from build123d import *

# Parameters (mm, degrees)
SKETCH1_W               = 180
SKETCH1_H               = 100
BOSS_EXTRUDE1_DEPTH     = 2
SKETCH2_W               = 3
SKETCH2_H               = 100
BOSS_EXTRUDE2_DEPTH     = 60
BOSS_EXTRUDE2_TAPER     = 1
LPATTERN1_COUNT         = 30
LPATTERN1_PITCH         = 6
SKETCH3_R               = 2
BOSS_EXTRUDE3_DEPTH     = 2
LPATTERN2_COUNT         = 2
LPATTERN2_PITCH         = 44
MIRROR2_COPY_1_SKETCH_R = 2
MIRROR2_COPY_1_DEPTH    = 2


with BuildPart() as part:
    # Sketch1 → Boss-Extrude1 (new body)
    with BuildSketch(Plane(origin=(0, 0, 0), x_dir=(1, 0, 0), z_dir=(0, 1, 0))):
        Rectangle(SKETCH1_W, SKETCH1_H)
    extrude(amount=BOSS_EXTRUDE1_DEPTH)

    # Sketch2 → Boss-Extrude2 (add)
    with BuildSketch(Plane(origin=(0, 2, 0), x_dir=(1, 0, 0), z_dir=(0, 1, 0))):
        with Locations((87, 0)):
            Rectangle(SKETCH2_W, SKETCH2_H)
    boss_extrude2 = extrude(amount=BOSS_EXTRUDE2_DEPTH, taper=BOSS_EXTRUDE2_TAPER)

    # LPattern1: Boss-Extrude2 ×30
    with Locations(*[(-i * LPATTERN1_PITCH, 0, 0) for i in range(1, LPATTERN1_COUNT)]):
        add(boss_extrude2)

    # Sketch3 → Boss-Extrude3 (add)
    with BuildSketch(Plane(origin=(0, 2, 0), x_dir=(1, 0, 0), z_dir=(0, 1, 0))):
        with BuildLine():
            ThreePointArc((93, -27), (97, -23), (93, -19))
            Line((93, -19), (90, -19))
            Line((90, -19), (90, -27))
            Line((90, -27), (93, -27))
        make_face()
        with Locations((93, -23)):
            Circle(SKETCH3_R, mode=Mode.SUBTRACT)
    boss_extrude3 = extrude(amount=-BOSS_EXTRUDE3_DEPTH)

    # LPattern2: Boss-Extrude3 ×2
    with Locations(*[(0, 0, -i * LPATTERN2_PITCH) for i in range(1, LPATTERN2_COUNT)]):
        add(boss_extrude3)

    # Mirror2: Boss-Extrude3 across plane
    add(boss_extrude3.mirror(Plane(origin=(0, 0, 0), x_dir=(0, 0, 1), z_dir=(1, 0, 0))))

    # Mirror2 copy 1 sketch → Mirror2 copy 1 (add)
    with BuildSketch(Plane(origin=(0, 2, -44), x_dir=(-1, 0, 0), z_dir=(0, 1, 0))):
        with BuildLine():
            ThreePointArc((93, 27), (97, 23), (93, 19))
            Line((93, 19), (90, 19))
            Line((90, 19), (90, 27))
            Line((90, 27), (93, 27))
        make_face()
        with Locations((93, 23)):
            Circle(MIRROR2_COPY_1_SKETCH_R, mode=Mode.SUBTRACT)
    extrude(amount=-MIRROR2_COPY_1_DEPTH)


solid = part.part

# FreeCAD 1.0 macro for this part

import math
import FreeCAD as App
import Part
import Sketcher

V = App.Vector
Q = App.Units.Quantity


def add_polygon(sketch, points):
    """Adds a closed chain of lines whose ends are joined by coincident constraints."""
    first, n = sketch.GeometryCount, len(points)
    for a, b in zip(points, points[1:] + points[:1]):
        sketch.addGeometry(Part.LineSegment(App.Vector(*a, 0), App.Vector(*b, 0)), False)
    for i in range(n):
        sketch.addConstraint(Sketcher.Constraint("Coincident", first + i, 2, first + (i + 1) % n, 1))

doc = App.newDocument("Part")
params = doc.addObject("Spreadsheet::Sheet", "Params")
for row, (alias, value) in enumerate([
    ("sketch1_width", "180 mm"),
    ("sketch1_height", "100 mm"),
    ("pad1_length", "2 mm"),
    ("sketch2_width", "3 mm"),
    ("sketch2_height", "100 mm"),
    ("pad2_length", "60 mm"),
    ("pad2_taper", "-1 deg"),
    ("linearpattern_pitch", "6 mm"),
    ("sketch3_diameter", "4 mm"),
    ("sketch3_radius", "4 mm"),
    ("sketch3_width", "3 mm"),
    ("pad3_length", "2 mm"),
    ("linearpattern2_pitch", "44 mm"),
    ("sketch4_diameter", "4 mm"),
    ("sketch4_radius", "4 mm"),
    ("sketch4_width", "3 mm"),
    ("pad4_length", "2 mm"),
], start=1):
    params.set(f"A{row}", alias)
    params.set(f"B{row}", "=" + value)
    params.setAlias(f"B{row}", alias)

body = doc.addObject("PartDesign::Body", "Body")

sketch1 = body.newObject("Sketcher::SketchObject", "Sketch")
sketch1.AttachmentSupport = (doc.getObject("XZ_Plane"), [""])
sketch1.MapMode = "FlatFace"
add_polygon(sketch1, [(-90, -50), (-90, 50), (90, 50), (90, -50)])
sketch1.addConstraint(Sketcher.Constraint("Vertical", 0))
sketch1.addConstraint(Sketcher.Constraint("Horizontal", 1))
sketch1.addConstraint(Sketcher.Constraint("Vertical", 2))
sketch1.addConstraint(Sketcher.Constraint("Horizontal", 3))
sketch1.addConstraint(Sketcher.Constraint("Symmetric", 0, 2, 2, 2, -1, 1))
sketch1.addConstraint(Sketcher.Constraint("DistanceX", 1, 1, 1, 2, Q("180 mm")))
sketch1.addConstraint(Sketcher.Constraint("DistanceY", 0, 1, 0, 2, Q("100 mm")))
sketch1.setExpression("Constraints[9]", "Params.sketch1_width")
sketch1.setExpression("Constraints[10]", "Params.sketch1_height")
pad1 = body.newObject("PartDesign::Pad", "Pad")
pad1.Profile = sketch1
pad1.setExpression("Length", "Params.pad1_length")
pad1.Reversed = True

sketch2 = body.newObject("Sketcher::SketchObject", "Sketch001")
sketch2.AttachmentSupport = (doc.getObject("XZ_Plane"), [""])
sketch2.MapMode = "FlatFace"
sketch2.AttachmentOffset = App.Placement(V(0, 0, -2), App.Rotation())
add_polygon(sketch2, [(85.5, -50), (85.5, 50), (88.5, 50), (88.5, -50)])
sketch2.addConstraint(Sketcher.Constraint("Vertical", 0))
sketch2.addConstraint(Sketcher.Constraint("Horizontal", 1))
sketch2.addConstraint(Sketcher.Constraint("Vertical", 2))
sketch2.addConstraint(Sketcher.Constraint("Horizontal", 3))
sketch2.addConstraint(Sketcher.Constraint("DistanceX", 1, 1, 1, 2, Q("3 mm")))
sketch2.addConstraint(Sketcher.Constraint("DistanceY", 0, 1, 0, 2, Q("100 mm")))
sketch2.addConstraint(Sketcher.Constraint("DistanceY", -1, 1, 0, 2, Q("50 mm")))
sketch2.addConstraint(Sketcher.Constraint("DistanceX", -1, 1, 0, 2, Q("85.5 mm")))
sketch2.setExpression("Constraints[8]", "Params.sketch2_width")
sketch2.setExpression("Constraints[9]", "Params.sketch2_height")
pad2 = body.newObject("PartDesign::Pad", "Pad001")
pad2.Profile = sketch2
pad2.setExpression("Length", "Params.pad2_length")
pad2.Reversed = True
pad2.setExpression("TaperAngle", "Params.pad2_taper")
doc.recompute()

linearpattern = body.newObject("PartDesign::LinearPattern", "LinearPattern")
linearpattern.Originals = [pad2]
linearpattern.Direction = (doc.getObject("X_Axis"), [""])
linearpattern.Mode = "offset"
linearpattern.setExpression("Offset", "Params.linearpattern_pitch")
linearpattern.Occurrences = 30
linearpattern.Reversed = True
body.Tip = linearpattern

sketch3 = body.newObject("Sketcher::SketchObject", "Sketch002")
sketch3.AttachmentSupport = (doc.getObject("XZ_Plane"), [""])
sketch3.MapMode = "FlatFace"
sketch3.AttachmentOffset = App.Placement(V(0, 0, -2), App.Rotation())
sketch3.addGeometry(Part.ArcOfCircle(Part.Circle(V(93, 23, 0), V(0, 0, 1), 4), math.radians(-90), math.radians(90)), False)
sketch3.addGeometry(Part.LineSegment(V(93, 19, 0), V(90, 19, 0)), False)
sketch3.addGeometry(Part.LineSegment(V(90, 19, 0), V(90, 27, 0)), False)
sketch3.addGeometry(Part.LineSegment(V(90, 27, 0), V(93, 27, 0)), False)
sketch3.addGeometry(Part.Circle(V(93, 23, 0), V(0, 0, 1), 2), False)
sketch3.addConstraint(Sketcher.Constraint("Tangent", 0, 1, 1, 1))
sketch3.addConstraint(Sketcher.Constraint("Coincident", 1, 2, 2, 1))
sketch3.addConstraint(Sketcher.Constraint("Coincident", 2, 2, 3, 1))
sketch3.addConstraint(Sketcher.Constraint("Tangent", 3, 2, 0, 2))
sketch3.addConstraint(Sketcher.Constraint("Horizontal", 1))
sketch3.addConstraint(Sketcher.Constraint("Vertical", 2))
sketch3.addConstraint(Sketcher.Constraint("Horizontal", 3))
sketch3.addConstraint(Sketcher.Constraint("Coincident", 4, 3, 0, 3))
sketch3.addConstraint(Sketcher.Constraint("Diameter", 4, Q("4 mm")))
sketch3.addConstraint(Sketcher.Constraint("Radius", 0, Q("4 mm")))
sketch3.addConstraint(Sketcher.Constraint("DistanceX", 1, 2, 1, 1, Q("3 mm")))
sketch3.addConstraint(Sketcher.Constraint("DistanceX", -1, 1, 0, 3, Q("93 mm")))
sketch3.addConstraint(Sketcher.Constraint("DistanceY", -1, 1, 0, 3, Q("23 mm")))
sketch3.setExpression("Constraints[8]", "Params.sketch3_diameter")
sketch3.setExpression("Constraints[9]", "Params.sketch3_radius")
sketch3.setExpression("Constraints[10]", "Params.sketch3_width")
pad3 = body.newObject("PartDesign::Pad", "Pad002")
pad3.Profile = sketch3
pad3.setExpression("Length", "Params.pad3_length")
doc.recompute()

linearpattern2 = body.newObject("PartDesign::LinearPattern", "LinearPattern001")
linearpattern2.Originals = [pad3]
linearpattern2.Direction = (doc.getObject("Z_Axis"), [""])
linearpattern2.Mode = "offset"
linearpattern2.setExpression("Offset", "Params.linearpattern2_pitch")
linearpattern2.Occurrences = 2
linearpattern2.Reversed = True
body.Tip = linearpattern2
doc.recompute()

mirrored = body.newObject("PartDesign::Mirrored", "Mirrored")
mirrored.Originals = [pad3]
mirrored.MirrorPlane = (doc.getObject("YZ_Plane"), [""])
body.Tip = mirrored

sketch4 = body.newObject("Sketcher::SketchObject", "Sketch003")
sketch4.AttachmentSupport = (doc.getObject("XZ_Plane"), [""])
sketch4.MapMode = "FlatFace"
sketch4.AttachmentOffset = App.Placement(V(0, 0, -2), App.Rotation())
sketch4.addGeometry(Part.ArcOfCircle(Part.Circle(V(-93, -21, 0), V(0, 0, 1), 4), math.radians(90), math.radians(270)), False)
sketch4.addGeometry(Part.LineSegment(V(-93, -17, 0), V(-90, -17, 0)), False)
sketch4.addGeometry(Part.LineSegment(V(-90, -17, 0), V(-90, -25, 0)), False)
sketch4.addGeometry(Part.LineSegment(V(-90, -25, 0), V(-93, -25, 0)), False)
sketch4.addGeometry(Part.Circle(V(-93, -21, 0), V(0, 0, 1), 2), False)
sketch4.addConstraint(Sketcher.Constraint("Tangent", 0, 1, 1, 1))
sketch4.addConstraint(Sketcher.Constraint("Coincident", 1, 2, 2, 1))
sketch4.addConstraint(Sketcher.Constraint("Coincident", 2, 2, 3, 1))
sketch4.addConstraint(Sketcher.Constraint("Tangent", 3, 2, 0, 2))
sketch4.addConstraint(Sketcher.Constraint("Horizontal", 1))
sketch4.addConstraint(Sketcher.Constraint("Vertical", 2))
sketch4.addConstraint(Sketcher.Constraint("Horizontal", 3))
sketch4.addConstraint(Sketcher.Constraint("Coincident", 4, 3, 0, 3))
sketch4.addConstraint(Sketcher.Constraint("Diameter", 4, Q("4 mm")))
sketch4.addConstraint(Sketcher.Constraint("Radius", 0, Q("4 mm")))
sketch4.addConstraint(Sketcher.Constraint("DistanceX", 1, 1, 1, 2, Q("3 mm")))
sketch4.addConstraint(Sketcher.Constraint("DistanceX", 0, 3, -1, 1, Q("93 mm")))
sketch4.addConstraint(Sketcher.Constraint("DistanceY", 0, 3, -1, 1, Q("21 mm")))
sketch4.setExpression("Constraints[8]", "Params.sketch4_diameter")
sketch4.setExpression("Constraints[9]", "Params.sketch4_radius")
sketch4.setExpression("Constraints[10]", "Params.sketch4_width")
pad4 = body.newObject("PartDesign::Pad", "Pad003")
pad4.Profile = sketch4
pad4.setExpression("Length", "Params.pad4_length")

doc.recompute()
